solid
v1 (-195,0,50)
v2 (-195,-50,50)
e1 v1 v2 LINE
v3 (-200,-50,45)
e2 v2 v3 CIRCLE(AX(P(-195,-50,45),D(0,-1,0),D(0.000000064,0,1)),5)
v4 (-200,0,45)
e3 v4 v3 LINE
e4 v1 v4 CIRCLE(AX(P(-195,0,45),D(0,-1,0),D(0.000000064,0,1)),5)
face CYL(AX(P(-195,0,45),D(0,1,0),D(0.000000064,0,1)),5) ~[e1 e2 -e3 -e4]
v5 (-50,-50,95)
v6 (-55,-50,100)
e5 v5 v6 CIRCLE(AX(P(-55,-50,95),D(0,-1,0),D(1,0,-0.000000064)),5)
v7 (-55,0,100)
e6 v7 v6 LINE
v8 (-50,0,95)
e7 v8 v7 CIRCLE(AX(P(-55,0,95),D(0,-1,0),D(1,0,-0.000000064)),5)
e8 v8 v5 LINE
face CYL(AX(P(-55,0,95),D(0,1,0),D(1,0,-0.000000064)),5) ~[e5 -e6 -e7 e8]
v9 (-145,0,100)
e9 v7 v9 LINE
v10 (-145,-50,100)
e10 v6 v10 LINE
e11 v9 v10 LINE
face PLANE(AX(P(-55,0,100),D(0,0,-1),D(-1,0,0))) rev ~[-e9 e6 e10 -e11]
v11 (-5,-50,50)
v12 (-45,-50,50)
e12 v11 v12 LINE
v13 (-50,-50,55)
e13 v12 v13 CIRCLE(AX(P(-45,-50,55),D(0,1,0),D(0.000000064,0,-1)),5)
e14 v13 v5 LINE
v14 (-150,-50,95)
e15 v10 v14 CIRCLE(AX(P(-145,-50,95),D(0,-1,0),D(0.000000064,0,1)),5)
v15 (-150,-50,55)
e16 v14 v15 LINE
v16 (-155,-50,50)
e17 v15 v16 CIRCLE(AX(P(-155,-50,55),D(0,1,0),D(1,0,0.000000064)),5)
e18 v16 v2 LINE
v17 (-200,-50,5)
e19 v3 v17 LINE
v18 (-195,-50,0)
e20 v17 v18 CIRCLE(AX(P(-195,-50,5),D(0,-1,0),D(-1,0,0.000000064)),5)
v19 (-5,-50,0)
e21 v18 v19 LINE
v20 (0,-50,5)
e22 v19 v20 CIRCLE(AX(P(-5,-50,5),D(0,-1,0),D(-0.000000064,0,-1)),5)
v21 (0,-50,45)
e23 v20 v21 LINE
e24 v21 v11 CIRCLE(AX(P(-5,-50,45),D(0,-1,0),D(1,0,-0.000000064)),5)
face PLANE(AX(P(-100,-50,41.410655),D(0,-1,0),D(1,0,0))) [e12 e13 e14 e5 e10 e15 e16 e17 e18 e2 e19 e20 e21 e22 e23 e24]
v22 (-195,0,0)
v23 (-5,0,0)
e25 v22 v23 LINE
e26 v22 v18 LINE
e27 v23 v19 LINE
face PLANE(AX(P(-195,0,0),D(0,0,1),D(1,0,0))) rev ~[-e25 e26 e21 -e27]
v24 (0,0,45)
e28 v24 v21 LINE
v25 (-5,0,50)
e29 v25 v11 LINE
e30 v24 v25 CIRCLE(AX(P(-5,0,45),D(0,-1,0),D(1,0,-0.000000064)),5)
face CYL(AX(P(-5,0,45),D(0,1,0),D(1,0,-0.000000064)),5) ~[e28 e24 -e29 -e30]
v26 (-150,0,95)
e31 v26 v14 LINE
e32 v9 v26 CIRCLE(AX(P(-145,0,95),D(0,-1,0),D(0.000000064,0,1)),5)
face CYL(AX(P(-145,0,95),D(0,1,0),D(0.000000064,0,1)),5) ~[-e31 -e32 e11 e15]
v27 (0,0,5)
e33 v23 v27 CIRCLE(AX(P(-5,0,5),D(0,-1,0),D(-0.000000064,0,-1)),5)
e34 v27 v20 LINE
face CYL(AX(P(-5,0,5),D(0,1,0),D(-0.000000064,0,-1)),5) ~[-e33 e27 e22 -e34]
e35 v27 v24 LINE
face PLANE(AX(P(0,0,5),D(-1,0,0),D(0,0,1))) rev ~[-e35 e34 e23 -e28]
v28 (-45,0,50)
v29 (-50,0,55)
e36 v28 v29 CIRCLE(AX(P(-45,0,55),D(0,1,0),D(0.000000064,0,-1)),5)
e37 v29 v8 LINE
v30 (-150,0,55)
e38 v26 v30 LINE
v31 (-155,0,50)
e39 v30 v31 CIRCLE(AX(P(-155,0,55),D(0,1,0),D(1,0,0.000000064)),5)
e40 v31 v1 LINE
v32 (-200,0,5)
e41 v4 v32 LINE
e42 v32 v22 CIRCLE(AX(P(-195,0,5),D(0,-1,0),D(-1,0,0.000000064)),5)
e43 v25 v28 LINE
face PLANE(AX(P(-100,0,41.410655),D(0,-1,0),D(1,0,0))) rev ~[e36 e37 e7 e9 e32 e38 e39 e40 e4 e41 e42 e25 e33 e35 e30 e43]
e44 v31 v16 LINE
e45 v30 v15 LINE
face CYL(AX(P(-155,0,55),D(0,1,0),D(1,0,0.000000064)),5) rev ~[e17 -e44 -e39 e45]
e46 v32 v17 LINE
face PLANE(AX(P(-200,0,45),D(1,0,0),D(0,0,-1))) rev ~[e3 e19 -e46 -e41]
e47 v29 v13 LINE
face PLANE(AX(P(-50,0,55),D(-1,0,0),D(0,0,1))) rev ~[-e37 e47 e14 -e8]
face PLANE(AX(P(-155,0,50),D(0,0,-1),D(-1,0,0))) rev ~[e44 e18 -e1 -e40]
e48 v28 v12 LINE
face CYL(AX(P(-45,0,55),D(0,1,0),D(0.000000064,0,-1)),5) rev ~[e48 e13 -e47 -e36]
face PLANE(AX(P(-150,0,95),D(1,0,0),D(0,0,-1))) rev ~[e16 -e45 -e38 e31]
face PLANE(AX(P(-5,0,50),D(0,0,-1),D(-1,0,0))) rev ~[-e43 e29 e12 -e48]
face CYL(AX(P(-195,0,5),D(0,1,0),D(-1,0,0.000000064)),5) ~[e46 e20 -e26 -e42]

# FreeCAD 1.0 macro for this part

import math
import FreeCAD as App
import Part
import Sketcher
from FreeCAD import Vector
Q = App.Units.Quantity

doc = App.newDocument("Part")
body = doc.addObject("PartDesign::Body", "Body")

sketch1 = body.newObject("Sketcher::SketchObject", "Sketch")
sketch1.AttachmentSupport = (doc.getObject("XZ_Plane"), [""])
sketch1.MapMode = "FlatFace"
sketch1.addGeometry(Part.LineSegment(Vector(-195, 0, 0), Vector(-5, 0, 0)), False)
sketch1.addGeometry(Part.ArcOfCircle(Part.Circle(Vector(-5, 5, 0), Vector(0, 0, 1), 5), math.radians(-90), math.radians(0)), False)
sketch1.addGeometry(Part.LineSegment(Vector(0, 5, 0), Vector(0, 45, 0)), False)
sketch1.addGeometry(Part.ArcOfCircle(Part.Circle(Vector(-5, 45, 0), Vector(0, 0, 1), 5), math.radians(0), math.radians(90)), False)
sketch1.addGeometry(Part.LineSegment(Vector(-5, 50, 0), Vector(-45, 50, 0)), False)
sketch1.addGeometry(Part.ArcOfCircle(Part.Circle(Vector(-45, 55, 0), Vector(0, 0, 1), 5), math.radians(180), math.radians(270)), False)
sketch1.addGeometry(Part.LineSegment(Vector(-50, 55, 0), Vector(-50, 95, 0)), False)
sketch1.addGeometry(Part.ArcOfCircle(Part.Circle(Vector(-55, 95, 0), Vector(0, 0, 1), 5), math.radians(0), math.radians(90)), False)
sketch1.addGeometry(Part.LineSegment(Vector(-55, 100, 0), Vector(-145, 100, 0)), False)
sketch1.addGeometry(Part.ArcOfCircle(Part.Circle(Vector(-145, 95, 0), Vector(0, 0, 1), 5), math.radians(90), math.radians(180)), False)
sketch1.addGeometry(Part.LineSegment(Vector(-150, 95, 0), Vector(-150, 55, 0)), False)
sketch1.addGeometry(Part.ArcOfCircle(Part.Circle(Vector(-155, 55, 0), Vector(0, 0, 1), 5), math.radians(-90), math.radians(0)), False)
sketch1.addGeometry(Part.LineSegment(Vector(-155, 50, 0), Vector(-195, 50, 0)), False)
sketch1.addGeometry(Part.ArcOfCircle(Part.Circle(Vector(-195, 45, 0), Vector(0, 0, 1), 5), math.radians(90), math.radians(180)), False)
sketch1.addGeometry(Part.LineSegment(Vector(-200, 45, 0), Vector(-200, 5, 0)), False)
sketch1.addGeometry(Part.ArcOfCircle(Part.Circle(Vector(-195, 5, 0), Vector(0, 0, 1), 5), math.radians(180), math.radians(270)), False)
sketch1.addConstraint(Sketcher.Constraint("Tangent", 0, 2, 1, 1))
sketch1.addConstraint(Sketcher.Constraint("Tangent", 1, 2, 2, 1))
sketch1.addConstraint(Sketcher.Constraint("Tangent", 2, 2, 3, 1))
sketch1.addConstraint(Sketcher.Constraint("Tangent", 3, 2, 4, 1))
sketch1.addConstraint(Sketcher.Constraint("Tangent", 4, 2, 5, 2))
sketch1.addConstraint(Sketcher.Constraint("Tangent", 5, 1, 6, 1))
sketch1.addConstraint(Sketcher.Constraint("Tangent", 6, 2, 7, 1))
sketch1.addConstraint(Sketcher.Constraint("Tangent", 7, 2, 8, 1))
sketch1.addConstraint(Sketcher.Constraint("Tangent", 8, 2, 9, 1))
sketch1.addConstraint(Sketcher.Constraint("Tangent", 9, 2, 10, 1))
sketch1.addConstraint(Sketcher.Constraint("Tangent", 10, 2, 11, 2))
sketch1.addConstraint(Sketcher.Constraint("Tangent", 11, 1, 12, 1))
sketch1.addConstraint(Sketcher.Constraint("Tangent", 12, 2, 13, 1))
sketch1.addConstraint(Sketcher.Constraint("Tangent", 13, 2, 14, 1))
sketch1.addConstraint(Sketcher.Constraint("Tangent", 14, 2, 15, 1))
sketch1.addConstraint(Sketcher.Constraint("Tangent", 15, 2, 0, 1))
sketch1.addConstraint(Sketcher.Constraint("Horizontal", 0))
sketch1.addConstraint(Sketcher.Constraint("Vertical", 2))
sketch1.addConstraint(Sketcher.Constraint("Horizontal", 4))
sketch1.addConstraint(Sketcher.Constraint("Vertical", 6))
sketch1.addConstraint(Sketcher.Constraint("Horizontal", 8))
sketch1.addConstraint(Sketcher.Constraint("Vertical", 10))
sketch1.addConstraint(Sketcher.Constraint("Horizontal", 12))
sketch1.addConstraint(Sketcher.Constraint("Vertical", 14))
sketch1.addConstraint(Sketcher.Constraint("Equal", 1, 3))
sketch1.addConstraint(Sketcher.Constraint("Equal", 3, 5))
sketch1.addConstraint(Sketcher.Constraint("Equal", 5, 7))
sketch1.addConstraint(Sketcher.Constraint("Equal", 7, 9))
sketch1.addConstraint(Sketcher.Constraint("Equal", 9, 11))
sketch1.addConstraint(Sketcher.Constraint("Equal", 11, 13))
sketch1.addConstraint(Sketcher.Constraint("Equal", 13, 15))
sketch1.addConstraint(Sketcher.Constraint("PointOnObject", 0, 2, -1))
sketch1.addConstraint(Sketcher.Constraint("PointOnObject", 1, 2, -2))
sketch1.addConstraint(Sketcher.Constraint("Horizontal", 5, 3, 11, 3))
sketch1.addConstraint(Sketcher.Constraint("Equal", 4, 12))
sketch1.addConstraint(Sketcher.Constraint("Equal", 12, 2))
sketch1.addConstraint(Sketcher.Constraint("Equal", 2, 6))
sketch1.addConstraint(Sketcher.Constraint("Radius", 1, Q("5 mm")))
sketch1.addConstraint(Sketcher.Constraint("DistanceX", 0, 1, 0, 2, Q("190 mm")))
sketch1.addConstraint(Sketcher.Constraint("DistanceX", 4, 2, 4, 1, Q("40 mm")))
pad1 = body.newObject("PartDesign::Pad", "Pad")
pad1.Profile = sketch1
pad1.Length = 50

doc.recompute()
